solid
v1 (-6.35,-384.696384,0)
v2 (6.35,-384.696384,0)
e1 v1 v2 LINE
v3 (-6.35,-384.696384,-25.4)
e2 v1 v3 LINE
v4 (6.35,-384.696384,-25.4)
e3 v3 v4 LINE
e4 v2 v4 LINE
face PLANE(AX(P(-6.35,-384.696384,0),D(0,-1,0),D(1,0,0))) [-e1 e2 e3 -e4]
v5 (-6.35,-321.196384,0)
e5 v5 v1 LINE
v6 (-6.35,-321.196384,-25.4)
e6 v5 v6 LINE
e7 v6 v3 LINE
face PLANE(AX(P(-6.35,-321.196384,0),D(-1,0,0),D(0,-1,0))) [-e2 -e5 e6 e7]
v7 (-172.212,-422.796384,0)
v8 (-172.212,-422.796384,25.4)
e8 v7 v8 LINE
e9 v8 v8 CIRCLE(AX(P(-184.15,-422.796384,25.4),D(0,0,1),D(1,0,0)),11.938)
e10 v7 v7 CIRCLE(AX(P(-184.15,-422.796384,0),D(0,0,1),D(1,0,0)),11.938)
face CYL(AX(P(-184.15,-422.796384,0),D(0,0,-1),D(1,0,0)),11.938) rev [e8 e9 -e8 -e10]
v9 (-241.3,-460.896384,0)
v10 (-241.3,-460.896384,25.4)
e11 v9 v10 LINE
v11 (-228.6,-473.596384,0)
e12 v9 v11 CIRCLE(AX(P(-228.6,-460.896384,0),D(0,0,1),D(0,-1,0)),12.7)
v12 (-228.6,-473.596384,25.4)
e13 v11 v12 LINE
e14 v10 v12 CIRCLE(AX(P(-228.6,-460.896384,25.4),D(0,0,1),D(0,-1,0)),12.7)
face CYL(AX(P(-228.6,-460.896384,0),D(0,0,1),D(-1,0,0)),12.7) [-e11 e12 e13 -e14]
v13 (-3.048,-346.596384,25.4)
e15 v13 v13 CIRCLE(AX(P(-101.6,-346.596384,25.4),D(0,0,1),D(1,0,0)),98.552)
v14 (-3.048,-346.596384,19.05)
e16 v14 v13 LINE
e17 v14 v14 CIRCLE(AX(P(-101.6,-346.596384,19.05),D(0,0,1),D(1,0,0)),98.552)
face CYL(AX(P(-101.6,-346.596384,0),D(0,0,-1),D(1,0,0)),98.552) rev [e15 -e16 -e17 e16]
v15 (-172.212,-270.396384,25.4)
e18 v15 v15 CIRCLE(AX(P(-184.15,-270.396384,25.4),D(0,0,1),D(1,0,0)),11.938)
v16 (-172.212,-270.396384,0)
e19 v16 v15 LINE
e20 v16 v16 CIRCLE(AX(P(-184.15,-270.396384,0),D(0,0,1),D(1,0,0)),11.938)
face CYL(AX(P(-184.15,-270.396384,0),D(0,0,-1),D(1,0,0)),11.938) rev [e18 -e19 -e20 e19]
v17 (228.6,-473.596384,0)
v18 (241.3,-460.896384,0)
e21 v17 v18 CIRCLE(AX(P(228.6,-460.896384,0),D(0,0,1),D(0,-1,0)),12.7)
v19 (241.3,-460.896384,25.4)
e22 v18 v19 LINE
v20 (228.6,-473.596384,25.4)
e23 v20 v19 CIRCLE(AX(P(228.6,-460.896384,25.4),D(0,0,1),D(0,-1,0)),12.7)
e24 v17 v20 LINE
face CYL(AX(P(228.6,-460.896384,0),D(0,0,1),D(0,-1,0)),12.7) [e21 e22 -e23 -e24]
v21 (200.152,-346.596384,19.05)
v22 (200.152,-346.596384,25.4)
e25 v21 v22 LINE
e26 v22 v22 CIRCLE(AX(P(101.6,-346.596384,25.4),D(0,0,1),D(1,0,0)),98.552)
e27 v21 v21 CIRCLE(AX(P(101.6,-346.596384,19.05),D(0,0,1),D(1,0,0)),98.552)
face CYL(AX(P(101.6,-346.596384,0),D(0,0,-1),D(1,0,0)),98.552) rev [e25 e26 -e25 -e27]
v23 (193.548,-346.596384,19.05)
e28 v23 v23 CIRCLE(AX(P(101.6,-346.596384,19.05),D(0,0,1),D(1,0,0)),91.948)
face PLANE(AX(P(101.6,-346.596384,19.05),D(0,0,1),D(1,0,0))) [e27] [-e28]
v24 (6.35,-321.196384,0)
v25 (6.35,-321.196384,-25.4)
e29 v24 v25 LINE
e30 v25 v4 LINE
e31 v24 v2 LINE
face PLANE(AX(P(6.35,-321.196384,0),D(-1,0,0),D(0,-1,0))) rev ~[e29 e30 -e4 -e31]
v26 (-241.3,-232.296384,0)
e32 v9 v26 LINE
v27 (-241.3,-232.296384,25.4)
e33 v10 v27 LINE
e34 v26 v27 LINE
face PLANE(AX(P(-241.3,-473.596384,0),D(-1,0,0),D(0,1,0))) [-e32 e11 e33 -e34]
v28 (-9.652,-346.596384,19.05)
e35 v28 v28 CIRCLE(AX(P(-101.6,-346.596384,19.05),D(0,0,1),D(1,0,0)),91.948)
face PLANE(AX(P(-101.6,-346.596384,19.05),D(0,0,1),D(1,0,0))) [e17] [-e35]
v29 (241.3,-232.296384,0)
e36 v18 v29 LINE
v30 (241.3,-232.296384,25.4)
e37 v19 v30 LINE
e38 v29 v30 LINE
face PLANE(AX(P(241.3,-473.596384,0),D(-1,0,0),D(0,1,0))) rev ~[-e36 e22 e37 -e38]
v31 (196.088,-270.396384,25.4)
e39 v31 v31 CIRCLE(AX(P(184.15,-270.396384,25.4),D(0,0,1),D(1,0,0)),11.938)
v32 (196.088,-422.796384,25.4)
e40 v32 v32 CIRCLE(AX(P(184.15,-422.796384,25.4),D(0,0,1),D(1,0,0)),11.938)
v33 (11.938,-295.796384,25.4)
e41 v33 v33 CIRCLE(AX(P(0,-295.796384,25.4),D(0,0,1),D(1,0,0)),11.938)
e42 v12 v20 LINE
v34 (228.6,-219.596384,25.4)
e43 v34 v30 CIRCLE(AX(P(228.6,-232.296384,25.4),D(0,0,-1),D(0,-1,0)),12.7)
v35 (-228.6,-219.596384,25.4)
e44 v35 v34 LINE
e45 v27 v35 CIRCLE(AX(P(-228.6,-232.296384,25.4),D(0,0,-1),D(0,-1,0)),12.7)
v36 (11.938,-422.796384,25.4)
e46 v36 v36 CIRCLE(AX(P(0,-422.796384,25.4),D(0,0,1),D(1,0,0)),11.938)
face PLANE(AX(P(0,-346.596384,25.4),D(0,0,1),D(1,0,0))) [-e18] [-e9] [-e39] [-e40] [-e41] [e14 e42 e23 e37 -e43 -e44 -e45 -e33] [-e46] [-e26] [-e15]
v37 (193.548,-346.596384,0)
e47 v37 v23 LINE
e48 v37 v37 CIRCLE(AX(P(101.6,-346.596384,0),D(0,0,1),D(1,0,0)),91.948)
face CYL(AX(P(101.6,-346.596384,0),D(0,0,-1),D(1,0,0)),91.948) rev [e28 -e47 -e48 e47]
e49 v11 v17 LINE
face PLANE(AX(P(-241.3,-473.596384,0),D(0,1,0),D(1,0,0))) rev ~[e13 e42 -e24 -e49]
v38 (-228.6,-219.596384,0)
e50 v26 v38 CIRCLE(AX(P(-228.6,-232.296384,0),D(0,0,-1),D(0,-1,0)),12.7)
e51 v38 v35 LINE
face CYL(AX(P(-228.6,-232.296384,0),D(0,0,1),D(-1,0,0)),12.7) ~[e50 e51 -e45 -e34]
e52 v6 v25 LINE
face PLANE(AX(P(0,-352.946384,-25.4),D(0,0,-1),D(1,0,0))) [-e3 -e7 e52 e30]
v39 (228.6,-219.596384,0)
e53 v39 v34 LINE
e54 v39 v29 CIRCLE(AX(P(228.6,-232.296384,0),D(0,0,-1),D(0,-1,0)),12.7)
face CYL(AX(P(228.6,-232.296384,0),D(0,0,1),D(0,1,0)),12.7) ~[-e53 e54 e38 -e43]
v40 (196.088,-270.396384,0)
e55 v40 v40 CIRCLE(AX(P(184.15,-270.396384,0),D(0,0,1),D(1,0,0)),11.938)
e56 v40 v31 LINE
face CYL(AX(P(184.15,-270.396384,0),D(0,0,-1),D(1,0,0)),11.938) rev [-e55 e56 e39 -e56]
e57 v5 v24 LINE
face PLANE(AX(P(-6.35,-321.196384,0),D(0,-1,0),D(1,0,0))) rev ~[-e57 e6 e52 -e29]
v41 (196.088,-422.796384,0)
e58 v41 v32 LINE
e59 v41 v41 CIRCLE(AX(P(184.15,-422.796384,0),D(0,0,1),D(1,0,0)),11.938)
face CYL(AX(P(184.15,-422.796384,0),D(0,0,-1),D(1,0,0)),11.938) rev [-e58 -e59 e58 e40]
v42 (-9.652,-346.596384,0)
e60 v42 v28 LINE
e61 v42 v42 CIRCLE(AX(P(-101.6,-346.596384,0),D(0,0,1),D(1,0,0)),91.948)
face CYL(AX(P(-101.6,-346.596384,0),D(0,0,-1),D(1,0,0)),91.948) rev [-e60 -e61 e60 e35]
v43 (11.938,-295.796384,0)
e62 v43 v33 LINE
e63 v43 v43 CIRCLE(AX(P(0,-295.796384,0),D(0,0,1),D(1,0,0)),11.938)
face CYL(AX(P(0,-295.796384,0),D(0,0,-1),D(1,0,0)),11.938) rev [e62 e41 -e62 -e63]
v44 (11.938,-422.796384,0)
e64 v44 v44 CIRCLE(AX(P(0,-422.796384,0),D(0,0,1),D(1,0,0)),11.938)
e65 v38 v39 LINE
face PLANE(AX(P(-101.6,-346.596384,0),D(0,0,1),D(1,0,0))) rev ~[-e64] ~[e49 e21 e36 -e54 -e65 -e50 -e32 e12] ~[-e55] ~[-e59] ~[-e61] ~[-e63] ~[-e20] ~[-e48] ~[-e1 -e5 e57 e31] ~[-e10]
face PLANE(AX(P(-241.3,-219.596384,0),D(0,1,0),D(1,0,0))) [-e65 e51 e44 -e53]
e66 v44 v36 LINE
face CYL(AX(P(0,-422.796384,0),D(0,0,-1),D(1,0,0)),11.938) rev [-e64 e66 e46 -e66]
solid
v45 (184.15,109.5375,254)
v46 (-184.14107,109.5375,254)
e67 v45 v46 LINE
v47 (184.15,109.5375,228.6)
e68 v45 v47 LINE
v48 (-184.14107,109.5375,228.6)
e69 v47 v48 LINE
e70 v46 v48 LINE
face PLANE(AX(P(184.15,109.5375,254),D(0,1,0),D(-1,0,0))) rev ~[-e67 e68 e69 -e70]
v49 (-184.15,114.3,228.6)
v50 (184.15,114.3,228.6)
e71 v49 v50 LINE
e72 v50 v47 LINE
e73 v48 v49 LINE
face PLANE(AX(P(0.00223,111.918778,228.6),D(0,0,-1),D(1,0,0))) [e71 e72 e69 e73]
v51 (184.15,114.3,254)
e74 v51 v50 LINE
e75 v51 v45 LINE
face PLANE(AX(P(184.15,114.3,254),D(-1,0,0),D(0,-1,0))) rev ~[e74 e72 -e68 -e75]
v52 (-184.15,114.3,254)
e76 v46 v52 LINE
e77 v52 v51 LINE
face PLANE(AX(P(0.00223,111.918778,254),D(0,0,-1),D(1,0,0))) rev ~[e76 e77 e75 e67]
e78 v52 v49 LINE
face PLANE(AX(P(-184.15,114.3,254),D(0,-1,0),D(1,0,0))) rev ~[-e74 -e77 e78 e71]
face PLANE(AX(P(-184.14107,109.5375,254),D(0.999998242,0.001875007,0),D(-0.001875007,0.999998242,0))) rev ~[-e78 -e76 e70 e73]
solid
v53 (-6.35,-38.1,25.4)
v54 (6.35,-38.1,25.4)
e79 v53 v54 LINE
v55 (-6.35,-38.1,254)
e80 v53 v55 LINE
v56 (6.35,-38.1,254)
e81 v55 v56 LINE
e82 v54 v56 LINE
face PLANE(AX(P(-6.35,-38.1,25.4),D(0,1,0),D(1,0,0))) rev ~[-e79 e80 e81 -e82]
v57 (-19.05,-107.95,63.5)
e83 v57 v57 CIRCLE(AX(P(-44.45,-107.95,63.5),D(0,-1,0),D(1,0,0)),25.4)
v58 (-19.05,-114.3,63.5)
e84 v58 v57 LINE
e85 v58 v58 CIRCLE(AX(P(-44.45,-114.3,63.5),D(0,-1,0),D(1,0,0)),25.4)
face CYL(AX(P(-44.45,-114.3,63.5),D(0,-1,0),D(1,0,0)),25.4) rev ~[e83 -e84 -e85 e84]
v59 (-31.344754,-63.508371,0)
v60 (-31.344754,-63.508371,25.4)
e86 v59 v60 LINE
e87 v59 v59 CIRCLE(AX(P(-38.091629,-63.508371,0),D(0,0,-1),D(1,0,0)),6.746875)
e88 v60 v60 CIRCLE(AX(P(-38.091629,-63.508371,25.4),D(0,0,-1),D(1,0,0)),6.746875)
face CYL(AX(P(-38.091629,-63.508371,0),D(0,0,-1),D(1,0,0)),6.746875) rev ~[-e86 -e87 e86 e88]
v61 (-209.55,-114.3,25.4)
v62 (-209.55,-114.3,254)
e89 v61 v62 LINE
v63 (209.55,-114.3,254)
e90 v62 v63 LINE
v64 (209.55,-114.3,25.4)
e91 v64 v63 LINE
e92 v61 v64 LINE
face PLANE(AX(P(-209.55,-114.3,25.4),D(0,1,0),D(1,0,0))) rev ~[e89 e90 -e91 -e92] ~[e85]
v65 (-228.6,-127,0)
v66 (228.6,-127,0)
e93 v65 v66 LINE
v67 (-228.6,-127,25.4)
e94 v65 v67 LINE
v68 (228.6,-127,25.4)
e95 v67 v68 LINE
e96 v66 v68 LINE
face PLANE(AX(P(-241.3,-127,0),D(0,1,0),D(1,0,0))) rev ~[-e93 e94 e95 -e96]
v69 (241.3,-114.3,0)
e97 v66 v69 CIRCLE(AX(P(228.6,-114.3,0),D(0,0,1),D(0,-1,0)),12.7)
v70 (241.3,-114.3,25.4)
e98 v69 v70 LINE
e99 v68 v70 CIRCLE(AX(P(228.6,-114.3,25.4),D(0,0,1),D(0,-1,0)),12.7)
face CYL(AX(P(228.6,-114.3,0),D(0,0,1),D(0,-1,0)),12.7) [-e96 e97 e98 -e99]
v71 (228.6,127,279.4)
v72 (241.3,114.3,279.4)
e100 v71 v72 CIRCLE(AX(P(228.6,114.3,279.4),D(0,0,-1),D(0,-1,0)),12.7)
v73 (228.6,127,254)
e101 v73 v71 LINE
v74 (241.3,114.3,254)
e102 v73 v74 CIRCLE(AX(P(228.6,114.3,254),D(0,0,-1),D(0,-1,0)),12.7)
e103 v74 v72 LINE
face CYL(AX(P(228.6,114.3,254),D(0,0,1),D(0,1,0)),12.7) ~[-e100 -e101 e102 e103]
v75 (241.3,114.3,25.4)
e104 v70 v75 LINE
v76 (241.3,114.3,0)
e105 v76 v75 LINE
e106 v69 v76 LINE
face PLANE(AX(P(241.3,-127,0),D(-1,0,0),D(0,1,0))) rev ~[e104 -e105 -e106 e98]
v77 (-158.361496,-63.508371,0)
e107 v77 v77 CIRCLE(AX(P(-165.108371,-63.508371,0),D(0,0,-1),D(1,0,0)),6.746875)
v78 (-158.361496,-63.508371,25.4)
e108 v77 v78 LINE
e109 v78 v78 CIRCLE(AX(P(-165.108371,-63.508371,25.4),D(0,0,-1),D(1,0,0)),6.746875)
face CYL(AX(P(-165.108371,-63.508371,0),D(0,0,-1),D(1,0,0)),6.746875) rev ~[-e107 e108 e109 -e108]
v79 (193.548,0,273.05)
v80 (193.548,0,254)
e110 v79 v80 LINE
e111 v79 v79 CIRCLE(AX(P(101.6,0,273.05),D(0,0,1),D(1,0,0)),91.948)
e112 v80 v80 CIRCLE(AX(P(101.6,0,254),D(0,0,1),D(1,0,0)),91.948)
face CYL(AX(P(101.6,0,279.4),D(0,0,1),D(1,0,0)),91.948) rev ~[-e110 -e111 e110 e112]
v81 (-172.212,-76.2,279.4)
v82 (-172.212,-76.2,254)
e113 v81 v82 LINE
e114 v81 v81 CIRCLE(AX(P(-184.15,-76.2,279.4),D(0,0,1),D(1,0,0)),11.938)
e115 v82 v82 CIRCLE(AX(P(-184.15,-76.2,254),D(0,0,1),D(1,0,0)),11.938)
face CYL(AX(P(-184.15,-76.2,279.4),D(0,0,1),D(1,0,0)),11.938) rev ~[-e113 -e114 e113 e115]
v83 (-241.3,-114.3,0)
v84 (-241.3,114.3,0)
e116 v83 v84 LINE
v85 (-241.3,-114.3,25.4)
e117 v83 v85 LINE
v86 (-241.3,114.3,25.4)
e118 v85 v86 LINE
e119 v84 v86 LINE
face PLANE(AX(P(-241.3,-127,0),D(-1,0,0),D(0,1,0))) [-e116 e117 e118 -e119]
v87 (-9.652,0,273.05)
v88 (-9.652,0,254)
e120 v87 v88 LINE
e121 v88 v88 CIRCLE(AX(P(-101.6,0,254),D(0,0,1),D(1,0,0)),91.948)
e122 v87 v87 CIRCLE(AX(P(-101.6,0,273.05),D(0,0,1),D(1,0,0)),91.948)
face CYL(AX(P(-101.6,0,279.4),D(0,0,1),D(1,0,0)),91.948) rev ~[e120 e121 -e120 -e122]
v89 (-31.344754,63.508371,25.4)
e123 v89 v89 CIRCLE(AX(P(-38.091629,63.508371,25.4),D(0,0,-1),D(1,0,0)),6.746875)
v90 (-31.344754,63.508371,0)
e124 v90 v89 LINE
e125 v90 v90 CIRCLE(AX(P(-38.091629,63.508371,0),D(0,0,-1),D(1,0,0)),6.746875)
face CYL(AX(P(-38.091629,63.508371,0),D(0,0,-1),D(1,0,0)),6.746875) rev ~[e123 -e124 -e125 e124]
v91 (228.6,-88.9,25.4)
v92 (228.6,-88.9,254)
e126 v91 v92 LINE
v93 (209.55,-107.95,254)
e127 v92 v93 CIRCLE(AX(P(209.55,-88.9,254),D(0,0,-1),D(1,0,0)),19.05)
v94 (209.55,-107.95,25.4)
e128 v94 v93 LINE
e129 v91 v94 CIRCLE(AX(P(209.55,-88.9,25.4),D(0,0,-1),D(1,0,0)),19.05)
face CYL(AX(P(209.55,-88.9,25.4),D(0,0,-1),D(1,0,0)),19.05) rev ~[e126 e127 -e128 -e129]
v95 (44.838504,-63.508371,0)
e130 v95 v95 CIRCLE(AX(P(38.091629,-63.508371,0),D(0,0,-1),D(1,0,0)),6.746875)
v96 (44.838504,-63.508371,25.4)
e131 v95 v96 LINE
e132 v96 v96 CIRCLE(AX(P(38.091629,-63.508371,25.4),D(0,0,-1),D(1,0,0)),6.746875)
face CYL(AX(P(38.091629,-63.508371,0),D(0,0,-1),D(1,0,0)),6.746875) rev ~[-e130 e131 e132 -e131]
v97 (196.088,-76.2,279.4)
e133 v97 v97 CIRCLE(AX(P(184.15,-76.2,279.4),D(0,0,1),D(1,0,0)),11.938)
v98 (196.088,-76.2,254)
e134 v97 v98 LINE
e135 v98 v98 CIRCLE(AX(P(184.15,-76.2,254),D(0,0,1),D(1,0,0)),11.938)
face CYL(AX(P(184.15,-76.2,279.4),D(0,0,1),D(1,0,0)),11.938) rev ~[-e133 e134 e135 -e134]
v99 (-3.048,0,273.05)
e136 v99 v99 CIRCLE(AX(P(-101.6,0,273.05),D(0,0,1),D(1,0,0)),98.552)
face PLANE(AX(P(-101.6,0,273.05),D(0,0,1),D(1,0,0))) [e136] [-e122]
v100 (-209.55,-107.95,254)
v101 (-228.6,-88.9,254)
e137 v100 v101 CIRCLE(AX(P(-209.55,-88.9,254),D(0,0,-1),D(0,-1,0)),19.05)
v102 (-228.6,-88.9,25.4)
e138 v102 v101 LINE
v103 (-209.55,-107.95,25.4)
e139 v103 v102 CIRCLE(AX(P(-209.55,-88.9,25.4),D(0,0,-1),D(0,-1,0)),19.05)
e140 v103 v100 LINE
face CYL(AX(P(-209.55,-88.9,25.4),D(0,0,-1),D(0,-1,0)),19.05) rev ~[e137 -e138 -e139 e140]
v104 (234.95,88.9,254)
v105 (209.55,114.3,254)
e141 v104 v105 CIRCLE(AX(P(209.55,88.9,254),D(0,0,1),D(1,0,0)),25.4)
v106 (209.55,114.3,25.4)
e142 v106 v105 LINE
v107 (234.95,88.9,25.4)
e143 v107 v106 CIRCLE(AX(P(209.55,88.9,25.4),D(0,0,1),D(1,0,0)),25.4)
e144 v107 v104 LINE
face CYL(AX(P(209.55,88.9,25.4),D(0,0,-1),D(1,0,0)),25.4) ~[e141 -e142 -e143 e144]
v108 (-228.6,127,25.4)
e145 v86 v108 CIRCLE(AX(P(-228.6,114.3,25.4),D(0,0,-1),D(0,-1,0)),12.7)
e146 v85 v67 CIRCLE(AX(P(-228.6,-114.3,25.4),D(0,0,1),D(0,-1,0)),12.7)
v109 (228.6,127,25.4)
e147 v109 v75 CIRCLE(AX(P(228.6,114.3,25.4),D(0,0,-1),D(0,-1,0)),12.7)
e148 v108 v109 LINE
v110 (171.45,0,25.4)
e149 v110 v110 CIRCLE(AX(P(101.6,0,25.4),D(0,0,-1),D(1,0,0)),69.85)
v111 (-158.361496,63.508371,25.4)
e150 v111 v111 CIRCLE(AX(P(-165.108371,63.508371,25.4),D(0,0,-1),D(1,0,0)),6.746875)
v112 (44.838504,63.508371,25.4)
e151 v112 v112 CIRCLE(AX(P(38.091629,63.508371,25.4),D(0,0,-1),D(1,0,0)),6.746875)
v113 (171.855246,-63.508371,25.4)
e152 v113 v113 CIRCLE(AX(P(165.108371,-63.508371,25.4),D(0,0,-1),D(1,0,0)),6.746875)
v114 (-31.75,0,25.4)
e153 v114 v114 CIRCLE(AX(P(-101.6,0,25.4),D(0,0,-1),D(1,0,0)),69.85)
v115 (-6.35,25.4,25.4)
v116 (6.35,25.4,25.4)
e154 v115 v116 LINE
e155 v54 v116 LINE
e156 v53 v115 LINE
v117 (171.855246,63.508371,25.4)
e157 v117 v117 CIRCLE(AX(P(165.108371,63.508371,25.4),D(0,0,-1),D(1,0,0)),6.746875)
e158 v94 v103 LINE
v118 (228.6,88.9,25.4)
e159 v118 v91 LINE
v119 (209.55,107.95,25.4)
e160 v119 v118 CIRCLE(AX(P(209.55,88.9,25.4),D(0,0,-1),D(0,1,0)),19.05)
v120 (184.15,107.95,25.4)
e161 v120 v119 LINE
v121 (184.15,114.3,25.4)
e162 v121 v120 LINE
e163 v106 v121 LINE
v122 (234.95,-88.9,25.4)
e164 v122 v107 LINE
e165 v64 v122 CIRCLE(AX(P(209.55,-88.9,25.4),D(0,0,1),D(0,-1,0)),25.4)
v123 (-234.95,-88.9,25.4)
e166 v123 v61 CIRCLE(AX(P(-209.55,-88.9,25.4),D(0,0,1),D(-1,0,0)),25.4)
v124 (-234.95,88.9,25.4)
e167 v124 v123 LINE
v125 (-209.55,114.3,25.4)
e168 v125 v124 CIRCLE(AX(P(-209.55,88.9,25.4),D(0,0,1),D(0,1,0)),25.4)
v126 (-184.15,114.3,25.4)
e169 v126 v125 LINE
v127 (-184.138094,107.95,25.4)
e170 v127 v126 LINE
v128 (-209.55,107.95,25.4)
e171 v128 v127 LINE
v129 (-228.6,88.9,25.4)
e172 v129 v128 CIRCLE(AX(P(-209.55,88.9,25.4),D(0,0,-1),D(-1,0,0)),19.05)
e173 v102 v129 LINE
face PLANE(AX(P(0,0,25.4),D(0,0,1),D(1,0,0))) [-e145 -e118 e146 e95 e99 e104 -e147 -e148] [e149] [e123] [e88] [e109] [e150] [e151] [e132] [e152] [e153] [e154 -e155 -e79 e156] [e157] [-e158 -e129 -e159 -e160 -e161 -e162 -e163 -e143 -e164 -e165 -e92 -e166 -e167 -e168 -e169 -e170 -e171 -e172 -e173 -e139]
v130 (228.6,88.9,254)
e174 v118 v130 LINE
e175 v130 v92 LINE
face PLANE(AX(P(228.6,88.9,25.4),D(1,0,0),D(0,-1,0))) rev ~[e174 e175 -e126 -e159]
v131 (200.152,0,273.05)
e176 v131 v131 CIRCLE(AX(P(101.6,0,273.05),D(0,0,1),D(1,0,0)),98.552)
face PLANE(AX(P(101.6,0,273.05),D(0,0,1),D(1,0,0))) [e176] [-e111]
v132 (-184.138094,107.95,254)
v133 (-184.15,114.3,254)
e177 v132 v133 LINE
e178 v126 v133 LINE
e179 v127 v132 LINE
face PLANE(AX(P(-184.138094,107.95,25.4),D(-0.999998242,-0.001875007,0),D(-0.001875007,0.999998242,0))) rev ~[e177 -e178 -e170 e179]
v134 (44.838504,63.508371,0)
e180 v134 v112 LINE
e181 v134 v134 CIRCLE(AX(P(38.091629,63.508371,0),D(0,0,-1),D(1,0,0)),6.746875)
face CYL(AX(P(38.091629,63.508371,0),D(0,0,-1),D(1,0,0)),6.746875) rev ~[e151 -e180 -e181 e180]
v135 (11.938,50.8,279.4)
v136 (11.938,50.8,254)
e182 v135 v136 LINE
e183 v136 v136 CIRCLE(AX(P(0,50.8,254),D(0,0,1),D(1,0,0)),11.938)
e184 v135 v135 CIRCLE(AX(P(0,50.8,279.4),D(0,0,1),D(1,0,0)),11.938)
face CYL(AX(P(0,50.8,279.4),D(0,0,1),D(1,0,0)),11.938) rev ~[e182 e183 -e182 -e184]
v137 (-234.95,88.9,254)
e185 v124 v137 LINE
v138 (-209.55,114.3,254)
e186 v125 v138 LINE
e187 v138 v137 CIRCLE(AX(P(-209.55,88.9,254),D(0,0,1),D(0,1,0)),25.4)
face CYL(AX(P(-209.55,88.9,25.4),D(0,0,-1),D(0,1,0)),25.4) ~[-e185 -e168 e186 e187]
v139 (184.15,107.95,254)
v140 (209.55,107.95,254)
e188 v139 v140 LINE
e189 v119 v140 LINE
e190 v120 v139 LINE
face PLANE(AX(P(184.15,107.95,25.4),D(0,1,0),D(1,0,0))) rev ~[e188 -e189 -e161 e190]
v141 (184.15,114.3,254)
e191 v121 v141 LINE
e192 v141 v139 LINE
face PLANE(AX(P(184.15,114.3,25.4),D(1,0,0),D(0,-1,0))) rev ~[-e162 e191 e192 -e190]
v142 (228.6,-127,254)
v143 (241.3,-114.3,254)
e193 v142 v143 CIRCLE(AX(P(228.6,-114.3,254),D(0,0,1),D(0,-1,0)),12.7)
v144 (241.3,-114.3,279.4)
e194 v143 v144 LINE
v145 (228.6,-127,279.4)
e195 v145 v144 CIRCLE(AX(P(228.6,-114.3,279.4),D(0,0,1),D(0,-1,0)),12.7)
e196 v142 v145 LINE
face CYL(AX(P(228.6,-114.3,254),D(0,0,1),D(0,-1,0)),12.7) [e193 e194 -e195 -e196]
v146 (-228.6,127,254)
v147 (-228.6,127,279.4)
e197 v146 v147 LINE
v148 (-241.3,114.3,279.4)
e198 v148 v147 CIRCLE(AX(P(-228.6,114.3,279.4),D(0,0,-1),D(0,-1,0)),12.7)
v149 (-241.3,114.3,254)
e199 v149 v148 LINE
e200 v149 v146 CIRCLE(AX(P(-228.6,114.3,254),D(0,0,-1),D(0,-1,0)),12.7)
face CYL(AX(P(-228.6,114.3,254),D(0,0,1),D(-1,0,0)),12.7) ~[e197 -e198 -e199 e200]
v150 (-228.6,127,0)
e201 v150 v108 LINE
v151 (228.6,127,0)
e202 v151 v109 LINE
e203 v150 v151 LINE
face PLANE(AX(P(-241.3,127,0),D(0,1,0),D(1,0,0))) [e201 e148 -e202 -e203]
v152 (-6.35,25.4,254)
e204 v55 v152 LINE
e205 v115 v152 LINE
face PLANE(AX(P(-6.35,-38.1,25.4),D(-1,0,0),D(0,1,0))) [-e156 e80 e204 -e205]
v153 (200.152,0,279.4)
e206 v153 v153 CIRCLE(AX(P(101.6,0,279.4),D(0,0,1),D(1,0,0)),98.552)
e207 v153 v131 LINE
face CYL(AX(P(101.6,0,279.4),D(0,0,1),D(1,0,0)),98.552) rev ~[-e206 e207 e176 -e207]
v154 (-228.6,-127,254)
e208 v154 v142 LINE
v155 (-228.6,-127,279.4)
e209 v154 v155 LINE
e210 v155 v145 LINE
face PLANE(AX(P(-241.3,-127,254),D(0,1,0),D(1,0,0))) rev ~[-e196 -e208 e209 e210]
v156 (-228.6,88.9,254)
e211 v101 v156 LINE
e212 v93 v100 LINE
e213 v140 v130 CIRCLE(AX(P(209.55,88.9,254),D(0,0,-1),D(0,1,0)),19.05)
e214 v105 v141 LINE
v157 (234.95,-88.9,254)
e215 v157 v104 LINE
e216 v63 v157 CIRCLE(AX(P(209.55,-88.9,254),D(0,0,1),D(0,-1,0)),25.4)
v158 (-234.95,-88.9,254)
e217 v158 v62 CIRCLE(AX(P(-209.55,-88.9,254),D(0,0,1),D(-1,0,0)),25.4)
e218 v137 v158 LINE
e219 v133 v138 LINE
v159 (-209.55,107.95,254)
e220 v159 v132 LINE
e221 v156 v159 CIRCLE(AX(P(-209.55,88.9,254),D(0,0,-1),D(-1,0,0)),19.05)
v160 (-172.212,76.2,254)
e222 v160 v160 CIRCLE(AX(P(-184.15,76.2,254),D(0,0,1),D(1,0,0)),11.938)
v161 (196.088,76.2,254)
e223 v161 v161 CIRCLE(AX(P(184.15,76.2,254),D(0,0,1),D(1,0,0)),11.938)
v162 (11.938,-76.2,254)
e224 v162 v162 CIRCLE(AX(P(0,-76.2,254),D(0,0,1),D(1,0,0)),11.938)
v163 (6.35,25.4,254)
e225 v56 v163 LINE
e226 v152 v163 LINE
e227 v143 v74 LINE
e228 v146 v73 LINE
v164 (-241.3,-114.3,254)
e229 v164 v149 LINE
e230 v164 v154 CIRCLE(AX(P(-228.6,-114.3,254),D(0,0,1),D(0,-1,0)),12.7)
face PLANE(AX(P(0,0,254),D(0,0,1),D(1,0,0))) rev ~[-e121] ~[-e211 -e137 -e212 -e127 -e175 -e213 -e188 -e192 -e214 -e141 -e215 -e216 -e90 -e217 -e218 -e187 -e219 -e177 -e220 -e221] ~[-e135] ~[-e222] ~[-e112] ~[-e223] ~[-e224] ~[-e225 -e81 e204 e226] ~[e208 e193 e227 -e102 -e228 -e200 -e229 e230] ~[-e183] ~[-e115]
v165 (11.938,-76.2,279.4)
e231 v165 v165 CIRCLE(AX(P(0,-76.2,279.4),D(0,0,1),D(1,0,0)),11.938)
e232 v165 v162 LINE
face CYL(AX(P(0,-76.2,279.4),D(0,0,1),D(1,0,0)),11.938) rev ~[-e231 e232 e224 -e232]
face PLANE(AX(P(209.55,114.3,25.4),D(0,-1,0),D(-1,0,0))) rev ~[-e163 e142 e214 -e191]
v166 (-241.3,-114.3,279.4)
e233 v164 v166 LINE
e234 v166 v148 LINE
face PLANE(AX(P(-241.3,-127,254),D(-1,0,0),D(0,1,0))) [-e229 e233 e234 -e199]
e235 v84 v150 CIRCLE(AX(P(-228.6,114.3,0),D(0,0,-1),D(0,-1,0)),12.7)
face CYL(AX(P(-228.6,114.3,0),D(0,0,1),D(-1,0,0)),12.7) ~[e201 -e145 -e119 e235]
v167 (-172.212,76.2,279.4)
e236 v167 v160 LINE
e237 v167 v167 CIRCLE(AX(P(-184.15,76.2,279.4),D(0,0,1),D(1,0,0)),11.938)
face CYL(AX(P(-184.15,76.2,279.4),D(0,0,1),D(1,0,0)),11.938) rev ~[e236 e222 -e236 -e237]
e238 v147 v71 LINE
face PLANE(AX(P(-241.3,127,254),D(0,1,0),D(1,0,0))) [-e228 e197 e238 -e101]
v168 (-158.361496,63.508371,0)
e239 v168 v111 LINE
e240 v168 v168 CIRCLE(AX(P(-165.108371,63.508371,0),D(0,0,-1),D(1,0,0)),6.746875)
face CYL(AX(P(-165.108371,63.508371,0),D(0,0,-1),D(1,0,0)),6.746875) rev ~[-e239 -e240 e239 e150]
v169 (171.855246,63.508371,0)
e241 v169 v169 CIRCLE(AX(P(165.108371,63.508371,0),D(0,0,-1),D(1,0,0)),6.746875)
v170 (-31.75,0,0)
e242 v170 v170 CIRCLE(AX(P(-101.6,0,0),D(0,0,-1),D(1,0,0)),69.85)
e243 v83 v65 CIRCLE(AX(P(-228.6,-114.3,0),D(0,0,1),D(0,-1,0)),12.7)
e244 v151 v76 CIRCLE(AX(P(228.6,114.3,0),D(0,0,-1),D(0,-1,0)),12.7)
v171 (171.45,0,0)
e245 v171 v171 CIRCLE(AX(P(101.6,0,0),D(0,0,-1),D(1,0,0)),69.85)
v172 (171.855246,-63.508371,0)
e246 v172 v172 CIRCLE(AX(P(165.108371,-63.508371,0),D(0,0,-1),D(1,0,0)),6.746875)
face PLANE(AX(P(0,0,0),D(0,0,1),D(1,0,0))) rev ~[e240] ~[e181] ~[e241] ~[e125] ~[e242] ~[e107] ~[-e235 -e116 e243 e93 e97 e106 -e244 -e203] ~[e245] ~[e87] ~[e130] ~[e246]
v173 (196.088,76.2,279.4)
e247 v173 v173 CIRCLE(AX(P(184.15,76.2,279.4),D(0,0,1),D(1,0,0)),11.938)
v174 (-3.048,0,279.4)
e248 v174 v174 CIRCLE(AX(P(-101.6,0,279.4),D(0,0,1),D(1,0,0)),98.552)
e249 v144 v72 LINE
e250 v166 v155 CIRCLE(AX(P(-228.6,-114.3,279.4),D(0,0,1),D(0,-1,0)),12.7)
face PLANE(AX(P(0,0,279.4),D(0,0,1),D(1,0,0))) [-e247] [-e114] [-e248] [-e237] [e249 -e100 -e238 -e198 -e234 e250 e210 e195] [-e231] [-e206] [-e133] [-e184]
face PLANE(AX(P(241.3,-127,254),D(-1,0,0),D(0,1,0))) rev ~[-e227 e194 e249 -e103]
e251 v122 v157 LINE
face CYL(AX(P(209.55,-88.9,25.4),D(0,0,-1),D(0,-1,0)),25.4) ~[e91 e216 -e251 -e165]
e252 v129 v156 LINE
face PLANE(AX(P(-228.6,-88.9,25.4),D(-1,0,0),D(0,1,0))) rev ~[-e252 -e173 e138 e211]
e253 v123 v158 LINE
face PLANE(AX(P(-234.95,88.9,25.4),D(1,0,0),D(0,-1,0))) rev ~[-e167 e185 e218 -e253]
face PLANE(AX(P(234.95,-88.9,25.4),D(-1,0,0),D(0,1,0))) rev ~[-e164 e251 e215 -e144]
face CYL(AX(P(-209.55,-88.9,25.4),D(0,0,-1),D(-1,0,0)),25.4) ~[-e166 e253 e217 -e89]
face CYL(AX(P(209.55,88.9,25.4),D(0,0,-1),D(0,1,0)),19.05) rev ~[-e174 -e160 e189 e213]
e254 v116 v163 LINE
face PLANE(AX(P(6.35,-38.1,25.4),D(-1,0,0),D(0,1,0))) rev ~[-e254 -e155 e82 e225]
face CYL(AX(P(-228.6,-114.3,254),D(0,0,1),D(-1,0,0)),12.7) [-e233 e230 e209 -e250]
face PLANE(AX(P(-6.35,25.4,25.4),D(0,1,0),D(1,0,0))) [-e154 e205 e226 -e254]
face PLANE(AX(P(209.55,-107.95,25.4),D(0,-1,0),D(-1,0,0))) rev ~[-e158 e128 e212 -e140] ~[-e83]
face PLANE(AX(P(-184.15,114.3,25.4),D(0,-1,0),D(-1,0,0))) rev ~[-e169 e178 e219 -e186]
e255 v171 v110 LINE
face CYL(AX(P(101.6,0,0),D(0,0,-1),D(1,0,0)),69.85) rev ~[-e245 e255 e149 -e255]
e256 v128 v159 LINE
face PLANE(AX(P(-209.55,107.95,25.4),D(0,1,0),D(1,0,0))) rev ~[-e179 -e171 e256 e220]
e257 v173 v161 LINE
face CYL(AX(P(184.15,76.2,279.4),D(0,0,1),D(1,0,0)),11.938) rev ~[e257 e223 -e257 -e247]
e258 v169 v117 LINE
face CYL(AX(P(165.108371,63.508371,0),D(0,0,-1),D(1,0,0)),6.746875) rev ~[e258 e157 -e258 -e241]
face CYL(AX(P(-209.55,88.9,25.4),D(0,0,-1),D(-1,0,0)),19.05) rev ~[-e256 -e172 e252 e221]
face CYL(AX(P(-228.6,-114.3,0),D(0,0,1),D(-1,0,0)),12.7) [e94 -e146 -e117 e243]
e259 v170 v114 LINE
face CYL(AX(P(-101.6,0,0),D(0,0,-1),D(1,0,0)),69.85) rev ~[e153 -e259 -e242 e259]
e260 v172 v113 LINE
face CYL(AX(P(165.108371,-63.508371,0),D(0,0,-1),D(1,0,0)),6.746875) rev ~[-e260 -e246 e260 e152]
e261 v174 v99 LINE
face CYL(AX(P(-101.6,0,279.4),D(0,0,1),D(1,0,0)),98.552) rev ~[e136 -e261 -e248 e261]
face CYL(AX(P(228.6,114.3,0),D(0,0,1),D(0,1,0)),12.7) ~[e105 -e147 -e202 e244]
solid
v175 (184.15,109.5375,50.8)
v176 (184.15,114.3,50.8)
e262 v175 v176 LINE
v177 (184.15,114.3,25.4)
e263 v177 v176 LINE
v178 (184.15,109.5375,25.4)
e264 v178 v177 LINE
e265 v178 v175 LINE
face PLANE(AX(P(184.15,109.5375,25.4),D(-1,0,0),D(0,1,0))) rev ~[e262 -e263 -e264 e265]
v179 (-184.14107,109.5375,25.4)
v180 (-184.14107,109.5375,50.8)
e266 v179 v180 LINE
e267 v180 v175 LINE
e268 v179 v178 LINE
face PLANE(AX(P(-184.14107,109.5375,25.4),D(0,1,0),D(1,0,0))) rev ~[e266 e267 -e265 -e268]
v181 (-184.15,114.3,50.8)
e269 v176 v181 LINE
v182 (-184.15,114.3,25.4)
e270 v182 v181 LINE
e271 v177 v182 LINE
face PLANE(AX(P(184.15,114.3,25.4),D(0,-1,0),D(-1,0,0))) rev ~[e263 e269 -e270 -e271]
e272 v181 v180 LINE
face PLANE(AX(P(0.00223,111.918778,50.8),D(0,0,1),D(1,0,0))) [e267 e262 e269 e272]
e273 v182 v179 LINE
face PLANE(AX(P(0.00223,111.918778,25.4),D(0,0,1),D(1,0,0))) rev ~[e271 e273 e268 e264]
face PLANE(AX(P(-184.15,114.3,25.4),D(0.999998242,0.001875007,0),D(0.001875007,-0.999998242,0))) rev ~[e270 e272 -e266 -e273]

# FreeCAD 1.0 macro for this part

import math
import FreeCAD as App
import Part
import Sketcher

V = App.Vector
Q = App.Units.Quantity


def edges_at(feature, points):
    """Names of the edges that pass closest to the given points."""
    edges = feature.Shape.Edges
    near = lambda p: min(range(len(edges)), key=lambda i: edges[i].distToShape(Part.Vertex(*p))[0])
    return sorted({f"Edge{near(p) + 1}" for p in points})


def add_polygon(sketch, points):
    """Adds a closed chain of lines whose ends are joined by coincident constraints."""
    first, n = sketch.GeometryCount, len(points)
    for a, b in zip(points, points[1:] + points[:1]):
        sketch.addGeometry(Part.LineSegment(App.Vector(*a, 0), App.Vector(*b, 0)), False)
    for i in range(n):
        sketch.addConstraint(Sketcher.Constraint("Coincident", first + i, 2, first + (i + 1) % n, 1))

doc = App.newDocument("Part")
params = doc.addObject("Spreadsheet::Sheet", "Params")
for row, (alias, value) in enumerate([
    ("sketch1_width", "19 in"),
    ("sketch1_height", "10 in"),
    ("pad1_length", "1 in"),
    ("sketch2_radius", "1 in"),
    ("sketch2_width", "1 in"),
    ("sketch2_height", "7 in"),
    ("sketch2_radius2", "0.75 in"),
    ("sketch2_width2", "16.5 in"),
    ("pad2_length", "9 in"),
    ("sketch3_width", "19 in"),
    ("sketch3_height", "10 in"),
    ("pad3_length", "1 in"),
    ("sketch4_diameter", "2 in"),
    ("pocket1_length", "0.25 in"),
    ("sketch5_diameter", "7.24 in"),
    ("sketch5_diameter2", "0.94 in"),
    ("pocket2_length", "1 in"),
    ("sketch6_diameter", "7.76 in"),
    ("sketch6_diameter2", "7.24 in"),
    ("pocket3_length", "0.25 in"),
    ("sketch7_diameter", "5.5 in"),
    ("sketch7_diameter2", "0.53125 in"),
    ("pocket4_length", "1 in"),
    ("fillet_radius", "0.5 in"),
    ("sketch8_width", "14.5 in"),
    ("sketch8_height", "0.1875 in"),
    ("pad4_length", "1 in"),
    ("sketch9_width", "14.5 in"),
    ("sketch9_height", "0.1875 in"),
    ("pad5_length", "1 in"),
    ("sketch10_diameter", "0.94 in"),
    ("sketch10_diameter2", "7.76 in"),
    ("sketch10_width", "19 in"),
    ("sketch10_height", "10 in"),
    ("pad6_length", "1 in"),
    ("sketch11_diameter", "7.76 in"),
    ("sketch11_diameter2", "7.24 in"),
    ("pad7_length", "0.75 in"),
    ("sketch12_width", "0.5 in"),
    ("sketch12_height", "2.5 in"),
    ("pad8_length", "1 in"),
    ("fillet2_radius", "0.5 in"),
], start=1):
    params.set(f"A{row}", alias)
    params.set(f"B{row}", "=" + value)
    params.setAlias(f"B{row}", alias)

body = doc.addObject("PartDesign::Body", "Body")

sketch1 = body.newObject("Sketcher::SketchObject", "Sketch")
sketch1.AttachmentSupport = (doc.getObject("XY_Plane"), [""])
sketch1.MapMode = "FlatFace"
add_polygon(sketch1, [(-241, 127), (-241, -127), (241, -127), (241, 127)])
sketch1.addConstraint([
    Sketcher.Constraint("Vertical", 0),
    Sketcher.Constraint("Horizontal", 1),
    Sketcher.Constraint("Vertical", 2),
    Sketcher.Constraint("Horizontal", 3),
    Sketcher.Constraint("Symmetric", 0, 2, 2, 2, -1, 1),
    Sketcher.Constraint("DistanceX", 1, 1, 1, 2, Q("19 in")),
    Sketcher.Constraint("DistanceY", 0, 2, 0, 1, Q("10 in")),
])
sketch1.setExpression("Constraints[9]", "Params.sketch1_width")
sketch1.setExpression("Constraints[10]", "Params.sketch1_height")
pad1 = body.newObject("PartDesign::Pad", "Pad")
pad1.Profile = sketch1
pad1.setExpression("Length", "Params.pad1_length")

sketch2 = body.newObject("Sketcher::SketchObject", "Sketch001")
sketch2.AttachmentSupport = (doc.getObject("XY_Plane"), [""])
sketch2.MapMode = "FlatFace"
sketch2.AttachmentOffset = App.Placement(V(0, 0, 1 * 25.4), App.Rotation())
sketch2.addGeometry(Part.LineSegment(V(-210, -114, 0), V(210, -114, 0)), False)
sketch2.addGeometry(Part.ArcOfCircle(Part.Circle(V(210, -89, 0), V(0, 0, 1), 25), math.radians(-90), math.radians(0)), False)
sketch2.addGeometry(Part.LineSegment(V(235, -89, 0), V(235, 89, 0)), False)
sketch2.addGeometry(Part.ArcOfCircle(Part.Circle(V(210, 89, 0), V(0, 0, 1), 25), math.radians(0), math.radians(90)), False)
sketch2.addGeometry(Part.LineSegment(V(210, 114, 0), V(184, 114, 0)), False)
sketch2.addGeometry(Part.LineSegment(V(184, 114, 0), V(184, 108, 0)), False)
sketch2.addGeometry(Part.LineSegment(V(184, 108, 0), V(210, 108, 0)), False)
sketch2.addGeometry(Part.ArcOfCircle(Part.Circle(V(210, 89, 0), V(0, 0, 1), 19), math.radians(0), math.radians(90)), False)
sketch2.addGeometry(Part.LineSegment(V(229, 89, 0), V(229, -89, 0)), False)
sketch2.addGeometry(Part.ArcOfCircle(Part.Circle(V(210, -89, 0), V(0, 0, 1), 19), math.radians(-90), math.radians(0)), False)
sketch2.addGeometry(Part.LineSegment(V(210, -108, 0), V(-210, -108, 0)), False)
sketch2.addGeometry(Part.ArcOfCircle(Part.Circle(V(-210, -89, 0), V(0, 0, 1), 19), math.radians(180), math.radians(270)), False)
sketch2.addGeometry(Part.LineSegment(V(-229, -89, 0), V(-229, 89, 0)), False)
sketch2.addGeometry(Part.ArcOfCircle(Part.Circle(V(-210, 89, 0), V(0, 0, 1), 19), math.radians(90), math.radians(180)), False)
sketch2.addGeometry(Part.LineSegment(V(-210, 108, 0), V(-184, 108, 0)), False)
sketch2.addGeometry(Part.LineSegment(V(-184, 108, 0), V(-184, 114, 0)), False)
sketch2.addGeometry(Part.LineSegment(V(-184, 114, 0), V(-210, 114, 0)), False)
sketch2.addGeometry(Part.ArcOfCircle(Part.Circle(V(-210, 89, 0), V(0, 0, 1), 25), math.radians(90), math.radians(180)), False)
sketch2.addGeometry(Part.LineSegment(V(-235, 89, 0), V(-235, -89, 0)), False)
sketch2.addGeometry(Part.ArcOfCircle(Part.Circle(V(-210, -89, 0), V(0, 0, 1), 25), math.radians(180), math.radians(270)), False)
add_polygon(sketch2, [(-6, 25), (-6, -38), (6, -38), (6, 25)])
sketch2.addConstraint([
    Sketcher.Constraint("Tangent", 0, 2, 1, 1),
    Sketcher.Constraint("Tangent", 1, 2, 2, 1),
    Sketcher.Constraint("Tangent", 2, 2, 3, 1),
    Sketcher.Constraint("Tangent", 3, 2, 4, 1),
    Sketcher.Constraint("Coincident", 4, 2, 5, 1),
    Sketcher.Constraint("Coincident", 5, 2, 6, 1),
    Sketcher.Constraint("Tangent", 6, 2, 7, 2),
    Sketcher.Constraint("Tangent", 7, 1, 8, 1),
    Sketcher.Constraint("Tangent", 8, 2, 9, 2),
    Sketcher.Constraint("Tangent", 9, 1, 10, 1),
    Sketcher.Constraint("Tangent", 10, 2, 11, 2),
    Sketcher.Constraint("Tangent", 11, 1, 12, 1),
    Sketcher.Constraint("Tangent", 12, 2, 13, 2),
    Sketcher.Constraint("Tangent", 13, 1, 14, 1),
    Sketcher.Constraint("Coincident", 14, 2, 15, 1),
    Sketcher.Constraint("Coincident", 15, 2, 16, 1),
    Sketcher.Constraint("Tangent", 16, 2, 17, 1),
    Sketcher.Constraint("Tangent", 17, 2, 18, 1),
    Sketcher.Constraint("Tangent", 18, 2, 19, 1),
    Sketcher.Constraint("Tangent", 19, 2, 0, 1),
    Sketcher.Constraint("Horizontal", 0),
    Sketcher.Constraint("Vertical", 2),
    Sketcher.Constraint("Horizontal", 4),
    Sketcher.Constraint("Vertical", 5),
    Sketcher.Constraint("Horizontal", 6),
    Sketcher.Constraint("Vertical", 8),
    Sketcher.Constraint("Horizontal", 10),
    Sketcher.Constraint("Vertical", 12),
    Sketcher.Constraint("Horizontal", 14),
    Sketcher.Constraint("Horizontal", 16),
    Sketcher.Constraint("Vertical", 18),
    Sketcher.Constraint("Vertical", 20),
    Sketcher.Constraint("Horizontal", 21),
    Sketcher.Constraint("Vertical", 22),
    Sketcher.Constraint("Horizontal", 23),
    Sketcher.Constraint("Coincident", 7, 3, 3, 3),
    Sketcher.Constraint("Coincident", 9, 3, 1, 3),
    Sketcher.Constraint("Coincident", 17, 3, 13, 3),
    Sketcher.Constraint("Coincident", 19, 3, 11, 3),
    Sketcher.Constraint("Equal", 1, 3),
    Sketcher.Constraint("Equal", 9, 11),
    Sketcher.Constraint("Equal", 11, 13),
    Sketcher.Constraint("Symmetric", 3, 3, 11, 3, -1, 1),
    Sketcher.Constraint("Symmetric", 4, 2, 15, 2, -2),
    Sketcher.Constraint("Radius", 1, Q("1 in")),
    Sketcher.Constraint("DistanceX", 4, 2, 4, 1, Q("1 in")),
    Sketcher.Constraint("DistanceY", 2, 1, 2, 2, Q("7 in")),
    Sketcher.Constraint("Radius", 7, Q("0.75 in")),
    Sketcher.Constraint("DistanceX", 0, 1, 0, 2, Q("16.5 in")),
    Sketcher.Constraint("DistanceX", 21, 1, 21, 2, Q("0.5 in")),
    Sketcher.Constraint("DistanceY", 20, 2, 20, 1, Q("2.5 in")),
    Sketcher.Constraint("DistanceY", -1, 1, 22, 2, Q("1 in")),
    Sketcher.Constraint("DistanceX", 11, 3, 20, 2, Q("8 in")),
    Sketcher.Constraint("DistanceX", 14, 1, 14, 2, Q("25.411906 mm")),
])
sketch2.setExpression("Constraints[48]", "Params.sketch2_radius")
sketch2.setExpression("Constraints[49]", "Params.sketch2_width")
sketch2.setExpression("Constraints[50]", "Params.sketch2_height")
sketch2.setExpression("Constraints[51]", "Params.sketch2_radius2")
sketch2.setExpression("Constraints[52]", "Params.sketch2_width2")
pad2 = body.newObject("PartDesign::Pad", "Pad001")
pad2.Profile = sketch2
pad2.setExpression("Length", "Params.pad2_length")

sketch3 = body.newObject("Sketcher::SketchObject", "Sketch002")
sketch3.AttachmentSupport = (doc.getObject("XY_Plane"), [""])
sketch3.MapMode = "FlatFace"
sketch3.AttachmentOffset = App.Placement(V(0, 0, 10 * 25.4), App.Rotation())
add_polygon(sketch3, [(-241, 127), (-241, -127), (241, -127), (241, 127)])
sketch3.addConstraint([
    Sketcher.Constraint("Vertical", 0),
    Sketcher.Constraint("Horizontal", 1),
    Sketcher.Constraint("Vertical", 2),
    Sketcher.Constraint("Horizontal", 3),
    Sketcher.Constraint("Symmetric", 0, 2, 2, 2, -1, 1),
    Sketcher.Constraint("DistanceX", 1, 1, 1, 2, Q("19 in")),
    Sketcher.Constraint("DistanceY", 0, 2, 0, 1, Q("10 in")),
])
sketch3.setExpression("Constraints[9]", "Params.sketch3_width")
sketch3.setExpression("Constraints[10]", "Params.sketch3_height")
pad3 = body.newObject("PartDesign::Pad", "Pad002")
pad3.Profile = sketch3
pad3.setExpression("Length", "Params.pad3_length")

sketch4 = body.newObject("Sketcher::SketchObject", "Sketch003")
sketch4.AttachmentSupport = (doc.getObject("XZ_Plane"), [""])
sketch4.MapMode = "FlatFace"
sketch4.AttachmentOffset = App.Placement(V(0, 0, 4.5 * 25.4), App.Rotation())
sketch4.addGeometry(Part.Circle(V(-44, 64, 0), V(0, 0, 1), 25), False)
sketch4.addConstraint([
    Sketcher.Constraint("Diameter", 0, Q("2 in")),
    Sketcher.Constraint("DistanceY", -1, 1, 0, 3, Q("2.5 in")),
    Sketcher.Constraint("DistanceX", 0, 3, -1, 1, Q("1.75 in")),
])
sketch4.setExpression("Constraints[0]", "Params.sketch4_diameter")
pocket1 = body.newObject("PartDesign::Pocket", "Pocket")
pocket1.Profile = sketch4
pocket1.setExpression("Length", "Params.pocket1_length")

sketch5 = body.newObject("Sketcher::SketchObject", "Sketch004")
sketch5.AttachmentSupport = (doc.getObject("XY_Plane"), [""])
sketch5.MapMode = "FlatFace"
sketch5.AttachmentOffset = App.Placement(V(0, 0, 11 * 25.4), App.Rotation())
sketch5.addGeometry([
    Part.Circle(V(-102, 0, 0), V(0, 0, 1), 92),
    Part.Circle(V(102, 0, 0), V(0, 0, 1), 92),
    Part.Circle(V(184, 76, 0), V(0, 0, 1), 12),
    Part.Circle(V(184, -76, 0), V(0, 0, 1), 12),
    Part.Circle(V(0, -76, 0), V(0, 0, 1), 12),
    Part.Circle(V(0, 51, 0), V(0, 0, 1), 12),
    Part.Circle(V(-184, 76, 0), V(0, 0, 1), 12),
    Part.Circle(V(-184, -76, 0), V(0, 0, 1), 12),
], False)
sketch5.addConstraint([
    Sketcher.Constraint("Equal", 0, 1),
    Sketcher.Constraint("Equal", 2, 3),
    Sketcher.Constraint("Equal", 3, 4),
    Sketcher.Constraint("Equal", 4, 5),
    Sketcher.Constraint("Equal", 5, 6),
    Sketcher.Constraint("Equal", 6, 7),
    Sketcher.Constraint("Symmetric", 0, 3, 1, 3, -1, 1),
    Sketcher.Constraint("Symmetric", 3, 3, 6, 3, -1, 1),
    Sketcher.Constraint("Symmetric", 2, 3, 7, 3, -1, 1),
    Sketcher.Constraint("Symmetric", 2, 3, 6, 3, -2),
    Sketcher.Constraint("PointOnObject", 0, 3, -1),
    Sketcher.Constraint("PointOnObject", 4, 3, -2),
    Sketcher.Constraint("PointOnObject", 5, 3, -2),
    Sketcher.Constraint("Horizontal", 3, 3, 4, 3),
    Sketcher.Constraint("Diameter", 0, Q("7.24 in")),
    Sketcher.Constraint("Diameter", 2, Q("0.94 in")),
    Sketcher.Constraint("DistanceX", 0, 3, -1, 1, Q("4 in")),
    Sketcher.Constraint("DistanceY", -1, 1, 2, 3, Q("3 in")),
    Sketcher.Constraint("DistanceY", -1, 1, 5, 3, Q("2 in")),
    Sketcher.Constraint("DistanceX", 6, 3, 2, 3, Q("14.5 in")),
])
sketch5.setExpression("Constraints[14]", "Params.sketch5_diameter")
sketch5.setExpression("Constraints[15]", "Params.sketch5_diameter2")
pocket2 = body.newObject("PartDesign::Pocket", "Pocket001")
pocket2.Profile = sketch5
pocket2.setExpression("Length", "Params.pocket2_length")

sketch6 = body.newObject("Sketcher::SketchObject", "Sketch005")
sketch6.AttachmentSupport = (doc.getObject("XY_Plane"), [""])
sketch6.MapMode = "FlatFace"
sketch6.AttachmentOffset = App.Placement(V(0, 0, 11 * 25.4), App.Rotation())
sketch6.addGeometry([
    Part.Circle(V(-102, 0, 0), V(0, 0, 1), 99),
    Part.Circle(V(-102, 0, 0), V(0, 0, 1), 92),
    Part.Circle(V(102, 0, 0), V(0, 0, 1), 99),
    Part.Circle(V(102, 0, 0), V(0, 0, 1), 92),
], False)
sketch6.addConstraint([
    Sketcher.Constraint("Coincident", 1, 3, 0, 3),
    Sketcher.Constraint("Coincident", 3, 3, 2, 3),
    Sketcher.Constraint("Equal", 0, 2),
    Sketcher.Constraint("Equal", 1, 3),
    Sketcher.Constraint("Symmetric", 0, 3, 2, 3, -1, 1),
    Sketcher.Constraint("PointOnObject", 0, 3, -1),
    Sketcher.Constraint("Diameter", 0, Q("7.76 in")),
    Sketcher.Constraint("Diameter", 1, Q("7.24 in")),
    Sketcher.Constraint("DistanceX", 0, 3, -1, 1, Q("4 in")),
])
sketch6.setExpression("Constraints[6]", "Params.sketch6_diameter")
sketch6.setExpression("Constraints[7]", "Params.sketch6_diameter2")
pocket3 = body.newObject("PartDesign::Pocket", "Pocket002")
pocket3.Profile = sketch6
pocket3.setExpression("Length", "Params.pocket3_length")

sketch7 = body.newObject("Sketcher::SketchObject", "Sketch006")
sketch7.AttachmentSupport = (doc.getObject("XY_Plane"), [""])
sketch7.MapMode = "FlatFace"
sketch7.addGeometry([
    Part.Circle(V(102, 0, 0), V(0, 0, 1), 70),
    Part.Circle(V(165, 64, 0), V(0, 0, 1), 7),
    Part.Circle(V(165, -64, 0), V(0, 0, 1), 7),
    Part.Circle(V(38, -64, 0), V(0, 0, 1), 7),
    Part.Circle(V(38, 64, 0), V(0, 0, 1), 7),
    Part.Circle(V(-38, 64, 0), V(0, 0, 1), 7),
    Part.Circle(V(-102, 0, 0), V(0, 0, 1), 70),
    Part.Circle(V(-38, -64, 0), V(0, 0, 1), 7),
    Part.Circle(V(-165, -64, 0), V(0, 0, 1), 7),
    Part.Circle(V(-165, 64, 0), V(0, 0, 1), 7),
], False)
sketch7.addConstraint([
    Sketcher.Constraint("Equal", 1, 2),
    Sketcher.Constraint("Equal", 2, 3),
    Sketcher.Constraint("Equal", 3, 4),
    Sketcher.Constraint("Equal", 4, 5),
    Sketcher.Constraint("Equal", 0, 6),
    Sketcher.Constraint("Equal", 5, 7),
    Sketcher.Constraint("Equal", 7, 8),
    Sketcher.Constraint("Equal", 8, 9),
    Sketcher.Constraint("Symmetric", 3, 3, 5, 3, -1, 1),
    Sketcher.Constraint("Symmetric", 0, 3, 6, 3, -1, 1),
    Sketcher.Constraint("Symmetric", 4, 3, 7, 3, -1, 1),
    Sketcher.Constraint("Symmetric", 1, 3, 8, 3, -1, 1),
    Sketcher.Constraint("Symmetric", 2, 3, 9, 3, -1, 1),
    Sketcher.Constraint("Symmetric", 4, 3, 5, 3, -2),
    Sketcher.Constraint("Symmetric", 2, 3, 8, 3, -2),
    Sketcher.Constraint("PointOnObject", 0, 3, -1),
    Sketcher.Constraint("Horizontal", 2, 3, 3, 3),
    Sketcher.Constraint("Diameter", 0, Q("5.5 in")),
    Sketcher.Constraint("Diameter", 1, Q("0.53125 in")),
    Sketcher.Constraint("DistanceX", -1, 1, 0, 3, Q("4 in")),
    Sketcher.Constraint("DistanceX", 5, 3, 1, 3, Q("8 in")),
    Sketcher.Constraint("DistanceX", -1, 1, 1, 3, Q("165.108371 mm")),
    Sketcher.Constraint("DistanceY", -1, 1, 1, 3, Q("63.508371 mm")),
])
sketch7.setExpression("Constraints[17]", "Params.sketch7_diameter")
sketch7.setExpression("Constraints[18]", "Params.sketch7_diameter2")
pocket4 = body.newObject("PartDesign::Pocket", "Pocket003")
pocket4.Profile = sketch7
pocket4.setExpression("Length", "Params.pocket4_length")
pocket4.Reversed = True
doc.recompute()

fillet = body.newObject("PartDesign::Fillet", "Fillet")
fillet.Base = (pocket4, edges_at(pocket4, [
    (241.3, -127, 266.7),
    (241.3, 127, 266.7),
    (241.3, 127, 12.7),
    (241.3, -127, 12.7),
    (-241.3, -127, 266.7),
    (-241.3, -127, 12.7),
    (-241.3, 127, 266.7),
    (-241.3, 127, 12.7),
]))
fillet.setExpression("Radius", "Params.fillet_radius")
body2 = doc.addObject("PartDesign::Body", "Body001")

sketch8 = body2.newObject("Sketcher::SketchObject", "Sketch007")
sketch8.AttachmentSupport = (doc.getObject("XY_Plane001"), [""])
sketch8.MapMode = "FlatFace"
sketch8.AttachmentOffset = App.Placement(V(0, 0, 1 * 25.4), App.Rotation())
add_polygon(sketch8, [(-184.1, 109.5), (184.2, 109.5), (184.2, 114.3), (-184.2, 114.3)])
sketch8.addConstraint([
    Sketcher.Constraint("Horizontal", 0),
    Sketcher.Constraint("Vertical", 1),
    Sketcher.Constraint("Horizontal", 2),
    Sketcher.Constraint("DistanceX", 2, 2, 2, 1, Q("14.5 in")),
    Sketcher.Constraint("DistanceY", -1, 1, 1, 2, Q("4.5 in")),
    Sketcher.Constraint("DistanceY", 1, 1, 1, 2, Q("0.1875 in")),
    Sketcher.Constraint("DistanceX", -1, 1, 0, 2, Q("7.25 in")),
    Sketcher.Constraint("DistanceX", 0, 1, 0, 2, Q("368.29107 mm")),
])
sketch8.setExpression("Constraints[7]", "Params.sketch8_width")
sketch8.setExpression("Constraints[9]", "Params.sketch8_height")
pad4 = body2.newObject("PartDesign::Pad", "Pad003")
pad4.Profile = sketch8
pad4.setExpression("Length", "Params.pad4_length")
body3 = doc.addObject("PartDesign::Body", "Body002")

sketch9 = body3.newObject("Sketcher::SketchObject", "Sketch008")
sketch9.AttachmentSupport = (doc.getObject("XY_Plane002"), [""])
sketch9.MapMode = "FlatFace"
sketch9.AttachmentOffset = App.Placement(V(0, 0, 10 * 25.4), App.Rotation())
add_polygon(sketch9, [(-184.1, 109.5), (-184.2, 114.3), (184.2, 114.3), (184.2, 109.5)])
sketch9.addConstraint([
    Sketcher.Constraint("Horizontal", 1),
    Sketcher.Constraint("Vertical", 2),
    Sketcher.Constraint("Horizontal", 3),
    Sketcher.Constraint("DistanceX", 1, 1, 1, 2, Q("14.5 in")),
    Sketcher.Constraint("DistanceY", -1, 1, 0, 2, Q("4.5 in")),
    Sketcher.Constraint("DistanceY", 2, 2, 2, 1, Q("0.1875 in")),
    Sketcher.Constraint("DistanceX", 0, 2, -1, 1, Q("7.25 in")),
    Sketcher.Constraint("DistanceX", 3, 2, 3, 1, Q("368.29107 mm")),
])
sketch9.setExpression("Constraints[7]", "Params.sketch9_width")
sketch9.setExpression("Constraints[9]", "Params.sketch9_height")
pad5 = body3.newObject("PartDesign::Pad", "Pad004")
pad5.Profile = sketch9
pad5.setExpression("Length", "Params.pad5_length")
pad5.Reversed = True
body4 = doc.addObject("PartDesign::Body", "Body003")

sketch10 = body4.newObject("Sketcher::SketchObject", "Sketch009")
sketch10.AttachmentSupport = (doc.getObject("XY_Plane003"), [""])
sketch10.MapMode = "FlatFace"
add_polygon(sketch10, [(-241, -220), (-241, -474), (241, -474), (241, -220)])
sketch10.addGeometry(Part.Circle(V(-184, -423, 0), V(0, 0, 1), 12), False)
sketch10.addGeometry(Part.Circle(V(0, -423, 0), V(0, 0, 1), 12), False)
sketch10.addGeometry(Part.Circle(V(184, -423, 0), V(0, 0, 1), 12), False)
sketch10.addGeometry(Part.Circle(V(-102, -347, 0), V(0, 0, 1), 99), False)
sketch10.addGeometry(Part.Circle(V(-184, -270, 0), V(0, 0, 1), 12), False)
sketch10.addGeometry(Part.Circle(V(102, -347, 0), V(0, 0, 1), 99), False)
sketch10.addGeometry(Part.Circle(V(0, -296, 0), V(0, 0, 1), 12), False)
sketch10.addGeometry(Part.Circle(V(184, -270, 0), V(0, 0, 1), 12), False)
sketch10.addConstraint([
    Sketcher.Constraint("Vertical", 0),
    Sketcher.Constraint("Horizontal", 1),
    Sketcher.Constraint("Vertical", 2),
    Sketcher.Constraint("Horizontal", 3),
    Sketcher.Constraint("Equal", 4, 5),
    Sketcher.Constraint("Equal", 5, 6),
    Sketcher.Constraint("Equal", 6, 8),
    Sketcher.Constraint("Equal", 7, 9),
    Sketcher.Constraint("Equal", 8, 10),
    Sketcher.Constraint("Equal", 10, 11),
    Sketcher.Constraint("Symmetric", 4, 3, 6, 3, -2),
    Sketcher.Constraint("Symmetric", 7, 3, 9, 3, -2),
    Sketcher.Constraint("Symmetric", 8, 3, 11, 3, -2),
    Sketcher.Constraint("PointOnObject", 5, 3, -2),
    Sketcher.Constraint("PointOnObject", 10, 3, -2),
    Sketcher.Constraint("Horizontal", 4, 3, 5, 3),
    Sketcher.Constraint("Vertical", 4, 3, 8, 3),
    Sketcher.Constraint("Diameter", 4, Q("0.94 in")),
    Sketcher.Constraint("Diameter", 7, Q("7.76 in")),
    Sketcher.Constraint("DistanceX", 1, 1, 1, 2, Q("19 in")),
    Sketcher.Constraint("DistanceY", 0, 2, 0, 1, Q("10 in")),
    Sketcher.Constraint("DistanceX", 7, 3, -1, 1, Q("4 in")),
    Sketcher.Constraint("DistanceY", 4, 3, 7, 3, Q("3 in")),
    Sketcher.Constraint("DistanceY", 7, 3, 8, 3, Q("3 in")),
    Sketcher.Constraint("DistanceY", 7, 3, 10, 3, Q("2 in")),
    Sketcher.Constraint("DistanceY", 0, 2, 4, 3, Q("2 in")),
    Sketcher.Constraint("DistanceX", 0, 2, -1, 1, Q("9.5 in")),
    Sketcher.Constraint("DistanceX", 4, 3, 6, 3, Q("14.5 in")),
    Sketcher.Constraint("DistanceY", 4, 3, -1, 1, Q("422.796384 mm")),
])
sketch10.setExpression("Constraints[21]", "Params.sketch10_diameter")
sketch10.setExpression("Constraints[22]", "Params.sketch10_diameter2")
sketch10.setExpression("Constraints[23]", "Params.sketch10_width")
sketch10.setExpression("Constraints[24]", "Params.sketch10_height")
pad6 = body4.newObject("PartDesign::Pad", "Pad005")
pad6.Profile = sketch10
pad6.setExpression("Length", "Params.pad6_length")

sketch11 = body4.newObject("Sketcher::SketchObject", "Sketch010")
sketch11.AttachmentSupport = (doc.getObject("XY_Plane003"), [""])
sketch11.MapMode = "FlatFace"
sketch11.addGeometry([
    Part.Circle(V(-102, -347, 0), V(0, 0, 1), 99),
    Part.Circle(V(-102, -347, 0), V(0, 0, 1), 92),
    Part.Circle(V(102, -347, 0), V(0, 0, 1), 99),
    Part.Circle(V(102, -347, 0), V(0, 0, 1), 92),
], False)
sketch11.addConstraint([
    Sketcher.Constraint("Coincident", 1, 3, 0, 3),
    Sketcher.Constraint("Coincident", 3, 3, 2, 3),
    Sketcher.Constraint("Equal", 0, 2),
    Sketcher.Constraint("Equal", 1, 3),
    Sketcher.Constraint("Symmetric", 0, 3, 2, 3, -2),
    Sketcher.Constraint("Diameter", 0, Q("7.76 in")),
    Sketcher.Constraint("Diameter", 1, Q("7.24 in")),
    Sketcher.Constraint("DistanceX", 0, 3, -1, 1, Q("4 in")),
    Sketcher.Constraint("DistanceY", 0, 3, -1, 1, Q("346.596384 mm")),
])
sketch11.setExpression("Constraints[5]", "Params.sketch11_diameter")
sketch11.setExpression("Constraints[6]", "Params.sketch11_diameter2")
pad7 = body4.newObject("PartDesign::Pad", "Pad006")
pad7.Profile = sketch11
pad7.setExpression("Length", "Params.pad7_length")

sketch12 = body4.newObject("Sketcher::SketchObject", "Sketch011")
sketch12.AttachmentSupport = (doc.getObject("XY_Plane003"), [""])
sketch12.MapMode = "FlatFace"
add_polygon(sketch12, [(-6, -385), (-6, -321), (6, -321), (6, -385)])
sketch12.addConstraint([
    Sketcher.Constraint("Vertical", 0),
    Sketcher.Constraint("Horizontal", 1),
    Sketcher.Constraint("Vertical", 2),
    Sketcher.Constraint("Horizontal", 3),
    Sketcher.Constraint("DistanceX", 1, 1, 1, 2, Q("0.5 in")),
    Sketcher.Constraint("DistanceY", 0, 1, 0, 2, Q("2.5 in")),
    Sketcher.Constraint("DistanceX", 0, 2, -1, 1, Q("0.25 in")),
    Sketcher.Constraint("DistanceY", 0, 2, -1, 1, Q("321.196384 mm")),
])
sketch12.setExpression("Constraints[8]", "Params.sketch12_width")
sketch12.setExpression("Constraints[9]", "Params.sketch12_height")
pad8 = body4.newObject("PartDesign::Pad", "Pad007")
pad8.Profile = sketch12
pad8.setExpression("Length", "Params.pad8_length")
pad8.Reversed = True
doc.recompute()

fillet2 = body4.newObject("PartDesign::Fillet", "Fillet001")
fillet2.Base = (pad8, edges_at(pad8, [
    (241.3, -219.596, 12.7),
    (241.3, -473.596, 12.7),
    (-241.3, -473.596, 12.7),
    (-241.3, -219.596, 12.7),
]))
fillet2.setExpression("Radius", "Params.fillet2_radius")

doc.recompute()
